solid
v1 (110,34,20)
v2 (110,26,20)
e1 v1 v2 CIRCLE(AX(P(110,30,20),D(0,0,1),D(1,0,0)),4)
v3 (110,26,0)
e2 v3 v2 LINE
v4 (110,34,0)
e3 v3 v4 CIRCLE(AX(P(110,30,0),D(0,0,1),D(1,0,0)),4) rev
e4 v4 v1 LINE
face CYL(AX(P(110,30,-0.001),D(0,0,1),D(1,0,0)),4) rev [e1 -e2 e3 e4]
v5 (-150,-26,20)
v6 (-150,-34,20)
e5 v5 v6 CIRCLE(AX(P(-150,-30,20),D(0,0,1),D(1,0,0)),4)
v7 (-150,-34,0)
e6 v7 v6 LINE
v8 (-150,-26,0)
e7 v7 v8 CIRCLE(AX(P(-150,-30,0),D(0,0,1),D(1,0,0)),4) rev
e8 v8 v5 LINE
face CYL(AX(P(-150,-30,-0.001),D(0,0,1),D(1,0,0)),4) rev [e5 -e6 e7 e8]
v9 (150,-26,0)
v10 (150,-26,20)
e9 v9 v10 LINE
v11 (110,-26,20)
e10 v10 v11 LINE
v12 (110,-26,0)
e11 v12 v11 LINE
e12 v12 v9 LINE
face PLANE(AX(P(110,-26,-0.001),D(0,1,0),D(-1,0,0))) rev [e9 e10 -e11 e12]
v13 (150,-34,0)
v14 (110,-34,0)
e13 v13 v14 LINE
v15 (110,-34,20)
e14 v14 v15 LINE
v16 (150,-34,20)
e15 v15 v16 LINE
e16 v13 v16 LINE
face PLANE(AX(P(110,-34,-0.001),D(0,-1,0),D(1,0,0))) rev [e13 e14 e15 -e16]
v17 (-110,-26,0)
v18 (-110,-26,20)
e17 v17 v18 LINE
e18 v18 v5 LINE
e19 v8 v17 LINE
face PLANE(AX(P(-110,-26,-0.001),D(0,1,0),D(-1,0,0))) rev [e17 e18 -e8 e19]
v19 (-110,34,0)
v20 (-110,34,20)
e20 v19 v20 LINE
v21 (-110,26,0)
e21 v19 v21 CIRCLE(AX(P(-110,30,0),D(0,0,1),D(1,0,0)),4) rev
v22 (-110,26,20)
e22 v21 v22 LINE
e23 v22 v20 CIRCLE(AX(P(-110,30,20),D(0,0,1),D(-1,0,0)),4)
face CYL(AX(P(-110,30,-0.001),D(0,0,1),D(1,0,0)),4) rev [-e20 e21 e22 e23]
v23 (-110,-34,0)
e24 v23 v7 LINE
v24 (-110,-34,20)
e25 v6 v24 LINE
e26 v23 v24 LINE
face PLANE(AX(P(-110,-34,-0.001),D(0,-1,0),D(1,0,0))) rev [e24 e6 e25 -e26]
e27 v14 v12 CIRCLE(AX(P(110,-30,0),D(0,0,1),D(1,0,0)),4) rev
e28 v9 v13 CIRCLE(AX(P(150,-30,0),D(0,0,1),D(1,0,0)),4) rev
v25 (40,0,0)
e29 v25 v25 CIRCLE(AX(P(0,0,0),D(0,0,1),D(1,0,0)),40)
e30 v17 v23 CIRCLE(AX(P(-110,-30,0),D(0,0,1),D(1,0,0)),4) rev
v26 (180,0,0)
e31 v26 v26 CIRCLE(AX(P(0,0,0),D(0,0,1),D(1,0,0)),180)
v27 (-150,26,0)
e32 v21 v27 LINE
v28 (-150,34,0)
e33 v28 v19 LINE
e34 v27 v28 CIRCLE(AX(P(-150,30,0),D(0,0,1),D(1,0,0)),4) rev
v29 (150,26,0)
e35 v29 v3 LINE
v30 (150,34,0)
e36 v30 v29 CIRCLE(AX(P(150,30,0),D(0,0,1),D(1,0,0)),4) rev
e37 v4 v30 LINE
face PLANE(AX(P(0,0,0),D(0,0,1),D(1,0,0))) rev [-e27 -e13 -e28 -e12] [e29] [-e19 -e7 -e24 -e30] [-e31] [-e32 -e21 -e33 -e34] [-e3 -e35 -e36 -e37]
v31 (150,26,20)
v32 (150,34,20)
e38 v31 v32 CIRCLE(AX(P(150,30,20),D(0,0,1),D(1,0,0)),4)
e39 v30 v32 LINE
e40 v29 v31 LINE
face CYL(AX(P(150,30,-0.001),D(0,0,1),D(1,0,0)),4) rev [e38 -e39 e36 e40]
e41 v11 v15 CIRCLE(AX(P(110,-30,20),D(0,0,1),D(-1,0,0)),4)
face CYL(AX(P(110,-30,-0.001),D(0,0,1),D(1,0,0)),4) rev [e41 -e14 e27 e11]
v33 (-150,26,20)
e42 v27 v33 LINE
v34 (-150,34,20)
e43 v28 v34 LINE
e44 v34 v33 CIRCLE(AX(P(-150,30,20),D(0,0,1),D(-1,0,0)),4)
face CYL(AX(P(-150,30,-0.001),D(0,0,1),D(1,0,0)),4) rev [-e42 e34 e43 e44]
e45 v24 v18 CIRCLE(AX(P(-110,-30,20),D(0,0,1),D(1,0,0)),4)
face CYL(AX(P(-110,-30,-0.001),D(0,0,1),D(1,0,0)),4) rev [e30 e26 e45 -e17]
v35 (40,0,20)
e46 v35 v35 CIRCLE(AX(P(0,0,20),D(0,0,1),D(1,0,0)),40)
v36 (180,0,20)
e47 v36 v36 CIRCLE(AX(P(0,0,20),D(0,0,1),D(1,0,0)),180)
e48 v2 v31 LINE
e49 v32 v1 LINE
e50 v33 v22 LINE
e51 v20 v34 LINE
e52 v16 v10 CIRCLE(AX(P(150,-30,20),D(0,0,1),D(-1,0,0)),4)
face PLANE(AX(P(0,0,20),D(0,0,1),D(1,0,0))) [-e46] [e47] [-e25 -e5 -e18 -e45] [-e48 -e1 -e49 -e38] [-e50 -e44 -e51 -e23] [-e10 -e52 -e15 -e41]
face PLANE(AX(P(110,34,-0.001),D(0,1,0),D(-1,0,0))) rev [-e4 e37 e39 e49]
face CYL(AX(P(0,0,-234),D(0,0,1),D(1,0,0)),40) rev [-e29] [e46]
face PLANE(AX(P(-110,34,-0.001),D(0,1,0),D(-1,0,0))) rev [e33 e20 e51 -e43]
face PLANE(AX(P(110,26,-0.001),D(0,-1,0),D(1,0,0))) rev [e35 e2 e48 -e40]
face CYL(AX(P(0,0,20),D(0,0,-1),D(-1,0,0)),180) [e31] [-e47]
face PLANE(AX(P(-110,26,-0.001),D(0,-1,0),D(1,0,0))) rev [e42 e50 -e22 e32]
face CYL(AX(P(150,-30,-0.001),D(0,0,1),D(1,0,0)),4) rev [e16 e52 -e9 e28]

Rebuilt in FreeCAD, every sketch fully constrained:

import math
import FreeCAD as App
import Part
import Sketcher

doc = App.newDocument("Part")
body = doc.addObject("PartDesign::Body", "Body")

sketch1 = body.newObject("Sketcher::SketchObject", "Sketch")
sketch1.AttachmentSupport = (doc.getObject("XY_Plane"), [""])
sketch1.MapMode = "FlatFace"
sketch1.addGeometry(Part.Circle(App.Vector(0, 0, 0), App.Vector(0, 0, 1), 180), False)
sketch1.addConstraint(Sketcher.Constraint("Coincident", 0, 3, -1, 1))
sketch1.addConstraint(Sketcher.Constraint("Diameter", 0, 360.0))
pad1 = body.newObject("PartDesign::Pad", "Pad")
pad1.Profile = sketch1
pad1.Length = 20

sketch2 = body.newObject("Sketcher::SketchObject", "Sketch001")
sketch2.AttachmentSupport = (doc.getObject("XY_Plane"), [""])
sketch2.MapMode = "FlatFace"
sketch2.AttachmentOffset = App.Placement(App.Vector(0, 0, 20), App.Rotation())
sketch2.addGeometry(Part.Circle(App.Vector(0, 0, 0), App.Vector(0, 0, 1), 40), False)
sketch2.addConstraint(Sketcher.Constraint("Coincident", 0, 3, -1, 1))
sketch2.addConstraint(Sketcher.Constraint("Diameter", 0, 80.0))
pocket1 = body.newObject("PartDesign::Pocket", "Pocket")
pocket1.Profile = sketch2
pocket1.Length = 254

sketch3 = body.newObject("Sketcher::SketchObject", "Sketch002")
sketch3.AttachmentSupport = (doc.getObject("XY_Plane"), [""])
sketch3.MapMode = "FlatFace"
sketch3.AttachmentOffset = App.Placement(App.Vector(0, 0, 20), App.Rotation())
sketch3.addGeometry(Part.LineSegment(App.Vector(-110, 34, 0), App.Vector(-150, 34, 0)), False)
sketch3.addGeometry(Part.ArcOfCircle(Part.Circle(App.Vector(-150, 30, 0), App.Vector(0, 0, 1), 4), math.radians(90), math.radians(270)), False)
sketch3.addGeometry(Part.LineSegment(App.Vector(-150, 26, 0), App.Vector(-110, 26, 0)), False)
sketch3.addGeometry(Part.ArcOfCircle(Part.Circle(App.Vector(-110, 30, 0), App.Vector(0, 0, 1), 4), math.radians(-90), math.radians(90)), False)
sketch3.addConstraint(Sketcher.Constraint("Tangent", 0, 2, 1, 1))
sketch3.addConstraint(Sketcher.Constraint("Tangent", 1, 2, 2, 1))
sketch3.addConstraint(Sketcher.Constraint("Tangent", 2, 2, 3, 1))
sketch3.addConstraint(Sketcher.Constraint("Tangent", 3, 2, 0, 1))
sketch3.addConstraint(Sketcher.Constraint("Horizontal", 0))
sketch3.addConstraint(Sketcher.Constraint("Horizontal", 2))
sketch3.addConstraint(Sketcher.Constraint("Radius", 1, 4.0))
sketch3.addConstraint(Sketcher.Constraint("DistanceX", 0, 2, 0, 1, 40.0))
sketch3.addConstraint(Sketcher.Constraint("DistanceX", 1, 3, -1, 1, 150.0))
sketch3.addConstraint(Sketcher.Constraint("DistanceY", -1, 1, 1, 3, 30.0))
pocket2 = body.newObject("PartDesign::Pocket", "Pocket001")
pocket2.Profile = sketch3
pocket2.Type = "UpToFirst"

sketch4 = body.newObject("Sketcher::SketchObject", "Sketch003")
sketch4.AttachmentSupport = (doc.getObject("XY_Plane"), [""])
sketch4.MapMode = "FlatFace"
sketch4.AttachmentOffset = App.Placement(App.Vector(0, 0, 20), App.Rotation())
sketch4.addGeometry(Part.LineSegment(App.Vector(-150, -34, 0), App.Vector(-110, -34, 0)), False)
sketch4.addGeometry(Part.ArcOfCircle(Part.Circle(App.Vector(-110, -30, 0), App.Vector(0, 0, 1), 4), math.radians(-90), math.radians(90)), False)
sketch4.addGeometry(Part.LineSegment(App.Vector(-110, -26, 0), App.Vector(-150, -26, 0)), False)
sketch4.addGeometry(Part.ArcOfCircle(Part.Circle(App.Vector(-150, -30, 0), App.Vector(0, 0, 1), 4), math.radians(90), math.radians(270)), False)
sketch4.addConstraint(Sketcher.Constraint("Tangent", 0, 2, 1, 1))
sketch4.addConstraint(Sketcher.Constraint("Tangent", 1, 2, 2, 1))
sketch4.addConstraint(Sketcher.Constraint("Tangent", 2, 2, 3, 1))
sketch4.addConstraint(Sketcher.Constraint("Tangent", 3, 2, 0, 1))
sketch4.addConstraint(Sketcher.Constraint("Horizontal", 0))
sketch4.addConstraint(Sketcher.Constraint("Horizontal", 2))
sketch4.addConstraint(Sketcher.Constraint("Radius", 1, 4.0))
sketch4.addConstraint(Sketcher.Constraint("DistanceX", 0, 1, 0, 2, 40.0))
sketch4.addConstraint(Sketcher.Constraint("DistanceX", 1, 3, -1, 1, 110.0))
sketch4.addConstraint(Sketcher.Constraint("DistanceY", 1, 3, -1, 1, 30.0))
pocket3 = body.newObject("PartDesign::Pocket", "Pocket002")
pocket3.Profile = sketch4
pocket3.Type = "UpToFirst"

sketch5 = body.newObject("Sketcher::SketchObject", "Sketch004")
sketch5.AttachmentSupport = (doc.getObject("XY_Plane"), [""])
sketch5.MapMode = "FlatFace"
sketch5.AttachmentOffset = App.Placement(App.Vector(0, 0, 20), App.Rotation())
sketch5.addGeometry(Part.LineSegment(App.Vector(150, 34, 0), App.Vector(110, 34, 0)), False)
sketch5.addGeometry(Part.ArcOfCircle(Part.Circle(App.Vector(110, 30, 0), App.Vector(0, 0, 1), 4), math.radians(90), math.radians(270)), False)
sketch5.addGeometry(Part.LineSegment(App.Vector(110, 26, 0), App.Vector(150, 26, 0)), False)
sketch5.addGeometry(Part.ArcOfCircle(Part.Circle(App.Vector(150, 30, 0), App.Vector(0, 0, 1), 4), math.radians(-90), math.radians(90)), False)
sketch5.addConstraint(Sketcher.Constraint("Tangent", 0, 2, 1, 1))
sketch5.addConstraint(Sketcher.Constraint("Tangent", 1, 2, 2, 1))
sketch5.addConstraint(Sketcher.Constraint("Tangent", 2, 2, 3, 1))
sketch5.addConstraint(Sketcher.Constraint("Tangent", 3, 2, 0, 1))
sketch5.addConstraint(Sketcher.Constraint("Horizontal", 0))
sketch5.addConstraint(Sketcher.Constraint("Horizontal", 2))
sketch5.addConstraint(Sketcher.Constraint("Radius", 1, 4.0))
sketch5.addConstraint(Sketcher.Constraint("DistanceX", 0, 2, 0, 1, 40.0))
sketch5.addConstraint(Sketcher.Constraint("DistanceX", -1, 1, 1, 3, 110.0))
sketch5.addConstraint(Sketcher.Constraint("DistanceY", -1, 1, 1, 3, 30.0))
pocket4 = body.newObject("PartDesign::Pocket", "Pocket003")
pocket4.Profile = sketch5
pocket4.Type = "UpToFirst"

sketch6 = body.newObject("Sketcher::SketchObject", "Sketch005")
sketch6.AttachmentSupport = (doc.getObject("XY_Plane"), [""])
sketch6.MapMode = "FlatFace"
sketch6.AttachmentOffset = App.Placement(App.Vector(0, 0, 20), App.Rotation())
sketch6.addGeometry(Part.LineSegment(App.Vector(110, -34, 0), App.Vector(150, -34, 0)), False)
sketch6.addGeometry(Part.ArcOfCircle(Part.Circle(App.Vector(150, -30, 0), App.Vector(0, 0, 1), 4), math.radians(-90), math.radians(90)), False)
sketch6.addGeometry(Part.LineSegment(App.Vector(150, -26, 0), App.Vector(110, -26, 0)), False)
sketch6.addGeometry(Part.ArcOfCircle(Part.Circle(App.Vector(110, -30, 0), App.Vector(0, 0, 1), 4), math.radians(90), math.radians(270)), False)
sketch6.addConstraint(Sketcher.Constraint("Tangent", 0, 2, 1, 1))
sketch6.addConstraint(Sketcher.Constraint("Tangent", 1, 2, 2, 1))
sketch6.addConstraint(Sketcher.Constraint("Tangent", 2, 2, 3, 1))
sketch6.addConstraint(Sketcher.Constraint("Tangent", 3, 2, 0, 1))
sketch6.addConstraint(Sketcher.Constraint("Horizontal", 0))
sketch6.addConstraint(Sketcher.Constraint("Horizontal", 2))
sketch6.addConstraint(Sketcher.Constraint("Radius", 1, 4.0))
sketch6.addConstraint(Sketcher.Constraint("DistanceX", 0, 1, 0, 2, 40.0))
sketch6.addConstraint(Sketcher.Constraint("DistanceX", -1, 1, 1, 3, 150.0))
sketch6.addConstraint(Sketcher.Constraint("DistanceY", 1, 3, -1, 1, 30.0))
pocket5 = body.newObject("PartDesign::Pocket", "Pocket004")
pocket5.Profile = sketch6
pocket5.Type = "UpToFirst"

doc.recompute()
